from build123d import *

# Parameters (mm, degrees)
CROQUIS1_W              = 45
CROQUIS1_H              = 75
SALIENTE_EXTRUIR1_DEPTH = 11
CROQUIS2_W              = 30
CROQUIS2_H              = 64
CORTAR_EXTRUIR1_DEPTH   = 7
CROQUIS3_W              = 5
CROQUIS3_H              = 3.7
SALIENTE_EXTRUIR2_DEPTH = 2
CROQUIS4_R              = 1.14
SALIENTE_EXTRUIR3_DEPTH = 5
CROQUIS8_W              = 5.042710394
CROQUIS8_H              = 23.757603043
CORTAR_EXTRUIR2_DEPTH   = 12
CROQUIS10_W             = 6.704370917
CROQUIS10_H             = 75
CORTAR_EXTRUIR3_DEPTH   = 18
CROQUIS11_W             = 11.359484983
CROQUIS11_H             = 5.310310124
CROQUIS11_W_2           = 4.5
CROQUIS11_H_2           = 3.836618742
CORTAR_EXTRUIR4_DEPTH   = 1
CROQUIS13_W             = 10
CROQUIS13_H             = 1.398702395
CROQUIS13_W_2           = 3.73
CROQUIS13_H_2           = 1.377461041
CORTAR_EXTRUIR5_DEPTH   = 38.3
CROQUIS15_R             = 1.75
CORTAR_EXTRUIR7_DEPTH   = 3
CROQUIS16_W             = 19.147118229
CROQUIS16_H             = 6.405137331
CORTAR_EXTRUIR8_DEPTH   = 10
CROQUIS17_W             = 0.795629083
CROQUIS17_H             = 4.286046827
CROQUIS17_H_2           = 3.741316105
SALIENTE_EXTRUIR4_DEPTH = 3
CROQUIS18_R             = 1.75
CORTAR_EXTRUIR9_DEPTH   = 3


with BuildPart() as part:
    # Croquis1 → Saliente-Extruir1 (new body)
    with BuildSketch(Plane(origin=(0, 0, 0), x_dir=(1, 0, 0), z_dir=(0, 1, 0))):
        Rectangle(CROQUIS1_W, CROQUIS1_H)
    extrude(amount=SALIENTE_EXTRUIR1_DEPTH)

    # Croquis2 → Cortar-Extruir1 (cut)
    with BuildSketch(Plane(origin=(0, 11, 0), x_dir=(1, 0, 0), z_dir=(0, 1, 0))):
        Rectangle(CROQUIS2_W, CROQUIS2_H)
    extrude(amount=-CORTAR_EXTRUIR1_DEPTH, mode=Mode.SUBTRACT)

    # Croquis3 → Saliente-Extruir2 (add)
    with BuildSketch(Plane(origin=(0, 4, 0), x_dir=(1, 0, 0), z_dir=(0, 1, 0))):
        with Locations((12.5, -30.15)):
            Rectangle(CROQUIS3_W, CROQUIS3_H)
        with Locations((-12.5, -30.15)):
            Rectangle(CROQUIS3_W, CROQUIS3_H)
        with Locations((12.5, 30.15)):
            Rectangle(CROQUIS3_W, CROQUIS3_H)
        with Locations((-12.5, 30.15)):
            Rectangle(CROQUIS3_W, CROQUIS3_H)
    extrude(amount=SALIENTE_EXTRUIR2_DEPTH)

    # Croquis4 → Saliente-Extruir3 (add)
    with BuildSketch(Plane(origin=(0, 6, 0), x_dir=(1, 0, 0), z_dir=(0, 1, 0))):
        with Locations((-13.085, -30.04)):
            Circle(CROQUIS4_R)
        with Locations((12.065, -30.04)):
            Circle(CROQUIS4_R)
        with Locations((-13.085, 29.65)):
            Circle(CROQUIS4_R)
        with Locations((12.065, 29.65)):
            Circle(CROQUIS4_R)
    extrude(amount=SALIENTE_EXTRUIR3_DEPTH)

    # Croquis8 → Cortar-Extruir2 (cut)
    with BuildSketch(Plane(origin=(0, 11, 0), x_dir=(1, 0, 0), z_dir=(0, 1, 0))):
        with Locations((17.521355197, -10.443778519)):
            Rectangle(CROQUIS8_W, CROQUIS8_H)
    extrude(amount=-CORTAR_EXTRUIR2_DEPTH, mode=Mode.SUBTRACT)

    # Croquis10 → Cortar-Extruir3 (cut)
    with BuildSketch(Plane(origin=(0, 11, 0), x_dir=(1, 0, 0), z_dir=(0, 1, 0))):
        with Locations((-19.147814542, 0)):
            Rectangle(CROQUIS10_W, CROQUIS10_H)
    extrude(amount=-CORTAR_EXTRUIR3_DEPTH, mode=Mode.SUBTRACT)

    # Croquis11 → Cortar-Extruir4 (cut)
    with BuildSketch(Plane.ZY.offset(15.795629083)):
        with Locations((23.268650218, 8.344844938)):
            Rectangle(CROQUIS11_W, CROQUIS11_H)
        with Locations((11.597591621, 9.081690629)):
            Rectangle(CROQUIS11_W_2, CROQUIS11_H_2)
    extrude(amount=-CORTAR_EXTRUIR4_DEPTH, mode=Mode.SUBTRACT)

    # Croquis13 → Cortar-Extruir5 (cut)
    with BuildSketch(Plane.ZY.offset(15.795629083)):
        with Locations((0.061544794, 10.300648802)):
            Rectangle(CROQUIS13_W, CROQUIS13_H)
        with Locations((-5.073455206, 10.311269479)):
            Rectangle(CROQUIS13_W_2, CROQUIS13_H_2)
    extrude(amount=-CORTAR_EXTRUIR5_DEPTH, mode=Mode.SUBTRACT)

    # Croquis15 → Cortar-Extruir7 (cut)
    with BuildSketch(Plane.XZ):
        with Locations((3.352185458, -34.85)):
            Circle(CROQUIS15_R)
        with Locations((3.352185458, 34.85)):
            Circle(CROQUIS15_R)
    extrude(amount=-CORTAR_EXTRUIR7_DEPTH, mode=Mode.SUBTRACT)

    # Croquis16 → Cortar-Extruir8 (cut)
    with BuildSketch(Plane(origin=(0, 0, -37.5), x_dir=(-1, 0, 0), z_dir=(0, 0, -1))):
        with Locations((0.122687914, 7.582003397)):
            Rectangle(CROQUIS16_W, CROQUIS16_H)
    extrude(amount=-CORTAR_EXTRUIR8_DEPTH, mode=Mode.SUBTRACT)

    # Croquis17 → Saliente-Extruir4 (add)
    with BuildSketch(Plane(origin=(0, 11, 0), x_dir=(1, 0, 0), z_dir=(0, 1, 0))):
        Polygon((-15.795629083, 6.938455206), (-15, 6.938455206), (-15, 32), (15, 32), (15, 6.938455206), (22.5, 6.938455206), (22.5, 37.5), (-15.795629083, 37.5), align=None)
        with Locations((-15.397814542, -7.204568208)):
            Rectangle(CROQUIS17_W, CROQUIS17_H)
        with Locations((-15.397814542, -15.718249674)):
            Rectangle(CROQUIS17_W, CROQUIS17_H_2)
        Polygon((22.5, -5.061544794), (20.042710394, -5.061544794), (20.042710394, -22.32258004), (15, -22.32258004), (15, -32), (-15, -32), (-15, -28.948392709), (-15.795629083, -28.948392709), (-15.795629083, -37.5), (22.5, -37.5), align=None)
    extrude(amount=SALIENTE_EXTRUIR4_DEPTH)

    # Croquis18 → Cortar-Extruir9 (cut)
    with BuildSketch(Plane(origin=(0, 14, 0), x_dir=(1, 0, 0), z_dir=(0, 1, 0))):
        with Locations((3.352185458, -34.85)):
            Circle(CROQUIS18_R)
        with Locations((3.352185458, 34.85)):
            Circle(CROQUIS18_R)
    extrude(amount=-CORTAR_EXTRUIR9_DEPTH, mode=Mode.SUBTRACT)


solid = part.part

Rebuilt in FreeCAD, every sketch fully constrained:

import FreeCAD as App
import Part
import Sketcher
from FreeCAD import Vector


def add_polygon(sketch, points):
    """Adds a closed chain of lines whose ends are joined by coincident constraints."""
    first, n = sketch.GeometryCount, len(points)
    for a, b in zip(points, points[1:] + points[:1]):
        sketch.addGeometry(Part.LineSegment(App.Vector(*a, 0), App.Vector(*b, 0)), False)
    for i in range(n):
        sketch.addConstraint(Sketcher.Constraint("Coincident", first + i, 2, first + (i + 1) % n, 1))

doc = App.newDocument("Part")
params = doc.addObject("Spreadsheet::Sheet", "Params")
for row, (alias, value) in enumerate([
    ("sketch1_width", "45 mm"),
    ("sketch1_height", "75 mm"),
    ("pad1_length", "11 mm"),
    ("sketch2_width", "30 mm"),
    ("sketch2_height", "64 mm"),
    ("pocket1_length", "7 mm"),
    ("sketch3_width", "5 mm"),
    ("sketch3_height", "3.7 mm"),
    ("pad2_length", "2 mm"),
    ("sketch4_diameter", "2.28 mm"),
    ("pad3_length", "5 mm"),
    ("pocket2_length", "12 mm"),
    ("sketch6_height", "75 mm"),
    ("pocket3_length", "18 mm"),
    ("sketch7_height", "4.5 mm"),
    ("pocket4_length", "1 mm"),
    ("sketch8_height", "10 mm"),
    ("sketch8_height2", "12 mm"),
    ("pocket5_length", "38.3 mm"),
    ("sketch9_diameter", "3.5 mm"),
    ("pocket6_length", "3 mm"),
    ("pocket7_length", "10 mm"),
    ("sketch11_width", "30 mm"),
    ("sketch11_width2", "7.5 mm"),
    ("pad4_length", "3 mm"),
    ("sketch12_diameter", "3.5 mm"),
    ("pocket8_length", "3 mm"),
], start=1):
    params.set(f"A{row}", alias)
    params.set(f"B{row}", "=" + value)
    params.setAlias(f"B{row}", alias)

body = doc.addObject("PartDesign::Body", "Body")

# Sketch on XZ plane
sketch1 = body.newObject("Sketcher::SketchObject", "Sketch")
sketch1.AttachmentSupport = (doc.getObject("XZ_Plane"), [""])
sketch1.MapMode = "FlatFace"
add_polygon(sketch1, [(-22.5, -37.5), (-22.5, 37.5), (22.5, 37.5), (22.5, -37.5)])  # lines 0-3
sketch1.addConstraint([
    Sketcher.Constraint("Vertical", 0),
    Sketcher.Constraint("Horizontal", 1),
    Sketcher.Constraint("Vertical", 2),
    Sketcher.Constraint("Horizontal", 3),
    Sketcher.Constraint("Symmetric", 0, 2, 2, 2, -1, 1),
    Sketcher.Constraint("DistanceX", 1, 1, 1, 2, 45.0),
    Sketcher.Constraint("DistanceY", 0, 1, 0, 2, 75.0),
])
sketch1.setExpression("Constraints[9]", "Params.sketch1_width")
sketch1.setExpression("Constraints[10]", "Params.sketch1_height")
pad1 = body.newObject("PartDesign::Pad", "Pad")
pad1.Profile = sketch1
pad1.setExpression("Length", "Params.pad1_length")
pad1.Reversed = True

# Sketch on XZ plane
sketch2 = body.newObject("Sketcher::SketchObject", "Sketch001")
sketch2.AttachmentSupport = (doc.getObject("XZ_Plane"), [""])
sketch2.MapMode = "FlatFace"
sketch2.AttachmentOffset = App.Placement(Vector(0, 0, -11), App.Rotation())
add_polygon(sketch2, [(-15, -32), (-15, 32), (15, 32), (15, -32)])  # lines 0-3
sketch2.addConstraint([
    Sketcher.Constraint("Vertical", 0),
    Sketcher.Constraint("Horizontal", 1),
    Sketcher.Constraint("Vertical", 2),
    Sketcher.Constraint("Horizontal", 3),
    Sketcher.Constraint("Symmetric", 0, 2, 2, 2, -1, 1),
    Sketcher.Constraint("DistanceX", 1, 1, 1, 2, 30.0),
    Sketcher.Constraint("DistanceY", 0, 1, 0, 2, 64.0),
])
sketch2.setExpression("Constraints[9]", "Params.sketch2_width")
sketch2.setExpression("Constraints[10]", "Params.sketch2_height")
pocket1 = body.newObject("PartDesign::Pocket", "Pocket")
pocket1.Profile = sketch2
pocket1.setExpression("Length", "Params.pocket1_length")
pocket1.Reversed = True

# Sketch on XZ plane
sketch3 = body.newObject("Sketcher::SketchObject", "Sketch002")
sketch3.AttachmentSupport = (doc.getObject("XZ_Plane"), [""])
sketch3.MapMode = "FlatFace"
sketch3.AttachmentOffset = App.Placement(Vector(0, 0, -4), App.Rotation())
add_polygon(sketch3, [(10, 28.3), (10, 32), (15, 32), (15, 28.3)])  # lines 0-3
add_polygon(sketch3, [(-15, 28.3), (-15, 32), (-10, 32), (-10, 28.3)])  # lines 4-7
add_polygon(sketch3, [(10, -32), (10, -28.3), (15, -28.3), (15, -32)])  # lines 8-11
add_polygon(sketch3, [(-15, -32), (-15, -28.3), (-10, -28.3), (-10, -32)])  # lines 12-15
sketch3.addConstraint([
    Sketcher.Constraint("Vertical", 0),
    Sketcher.Constraint("Horizontal", 1),
    Sketcher.Constraint("Vertical", 2),
    Sketcher.Constraint("Horizontal", 3),
    Sketcher.Constraint("Vertical", 4),
    Sketcher.Constraint("Horizontal", 5),
    Sketcher.Constraint("Vertical", 6),
    Sketcher.Constraint("Horizontal", 7),
    Sketcher.Constraint("Vertical", 8),
    Sketcher.Constraint("Horizontal", 9),
    Sketcher.Constraint("Vertical", 10),
    Sketcher.Constraint("Horizontal", 11),
    Sketcher.Constraint("Vertical", 12),
    Sketcher.Constraint("Horizontal", 13),
    Sketcher.Constraint("Vertical", 14),
    Sketcher.Constraint("Horizontal", 15),
    Sketcher.Constraint("Symmetric", 6, 2, 8, 2, -1, 1),
    Sketcher.Constraint("Symmetric", 4, 2, 10, 2, -1, 1),
    Sketcher.Constraint("Symmetric", 2, 2, 12, 2, -1, 1),
    Sketcher.Constraint("Symmetric", 0, 2, 14, 2, -1, 1),
    Sketcher.Constraint("Symmetric", 1, 2, 4, 2, -2),
    Sketcher.Constraint("Symmetric", 3, 2, 6, 2, -2),
    Sketcher.Constraint("DistanceX", 1, 1, 1, 2, 5.0),
    Sketcher.Constraint("DistanceY", 0, 1, 0, 2, 3.7),
    Sketcher.Constraint("DistanceX", -1, 1, 0, 2, 10.0),
    Sketcher.Constraint("DistanceY", -1, 1, 0, 2, 32.0),
])
sketch3.setExpression("Constraints[38]", "Params.sketch3_width")
sketch3.setExpression("Constraints[39]", "Params.sketch3_height")
pad2 = body.newObject("PartDesign::Pad", "Pad001")
pad2.Profile = sketch3
pad2.setExpression("Length", "Params.pad2_length")
pad2.Reversed = True

# Sketch on XZ plane
sketch4 = body.newObject("Sketcher::SketchObject", "Sketch003")
sketch4.AttachmentSupport = (doc.getObject("XZ_Plane"), [""])
sketch4.MapMode = "FlatFace"
sketch4.AttachmentOffset = App.Placement(Vector(0, 0, -6), App.Rotation())
sketch4.addGeometry([
    Part.Circle(Vector(-13.085, 30.04, 0), Vector(0, 0, 1), 1.14),
    Part.Circle(Vector(12.065, 30.04, 0), Vector(0, 0, 1), 1.14),
    Part.Circle(Vector(-13.085, -29.65, 0), Vector(0, 0, 1), 1.14),
    Part.Circle(Vector(12.065, -29.65, 0), Vector(0, 0, 1), 1.14),
], False)
sketch4.addConstraint([
    Sketcher.Constraint("Equal", 0, 1),
    Sketcher.Constraint("Equal", 1, 2),
    Sketcher.Constraint("Equal", 2, 3),
    Sketcher.Constraint("Horizontal", 0, 3, 1, 3),
    Sketcher.Constraint("Horizontal", 2, 3, 3, 3),
    Sketcher.Constraint("Vertical", 0, 3, 2, 3),
    Sketcher.Constraint("Vertical", 1, 3, 3, 3),
    Sketcher.Constraint("Diameter", 0, 2.28),
    Sketcher.Constraint("DistanceY", -1, 1, 0, 3, 30.04),
    Sketcher.Constraint("DistanceY", 2, 3, -1, 1, 29.65),
    Sketcher.Constraint("DistanceX", 0, 3, 1, 3, 25.15),
    Sketcher.Constraint("DistanceX", 0, 3, -1, 1, 13.085),
])
sketch4.setExpression("Constraints[7]", "Params.sketch4_diameter")
pad3 = body.newObject("PartDesign::Pad", "Pad002")
pad3.Profile = sketch4
pad3.setExpression("Length", "Params.pad3_length")
pad3.Reversed = True

# Sketch on XZ plane
sketch5 = body.newObject("Sketcher::SketchObject", "Sketch004")
sketch5.AttachmentSupport = (doc.getObject("XZ_Plane"), [""])
sketch5.MapMode = "FlatFace"
sketch5.AttachmentOffset = App.Placement(Vector(0, 0, -11), App.Rotation())
add_polygon(sketch5, [(15, -1.435023), (15, 22.32258), (20.04271, 22.32258), (20.04271, -1.435023)])  # lines 0-3
sketch5.addConstraint([
    Sketcher.Constraint("Vertical", 0),
    Sketcher.Constraint("Horizontal", 1),
    Sketcher.Constraint("Vertical", 2),
    Sketcher.Constraint("Horizontal", 3),
    Sketcher.Constraint("DistanceX", -1, 1, 0, 2, 15.0),
    Sketcher.Constraint("DistanceX", 1, 1, 1, 2, 5.04271),
    Sketcher.Constraint("DistanceY", 0, 1, 0, 2, 23.757603),
    Sketcher.Constraint("DistanceY", -1, 1, 0, 2, 22.32258),
])
pocket2 = body.newObject("PartDesign::Pocket", "Pocket001")
pocket2.Profile = sketch5
pocket2.setExpression("Length", "Params.pocket2_length")
pocket2.Reversed = True

# Sketch on XZ plane
sketch6 = body.newObject("Sketcher::SketchObject", "Sketch005")
sketch6.AttachmentSupport = (doc.getObject("XZ_Plane"), [""])
sketch6.MapMode = "FlatFace"
sketch6.AttachmentOffset = App.Placement(Vector(0, 0, -11), App.Rotation())
add_polygon(sketch6, [(-22.5, -37.5), (-22.5, 37.5), (-15.795629, 37.5), (-15.795629, -37.5)])  # lines 0-3
sketch6.addConstraint([
    Sketcher.Constraint("Vertical", 0),
    Sketcher.Constraint("Horizontal", 1),
    Sketcher.Constraint("Vertical", 2),
    Sketcher.Constraint("Horizontal", 3),
    Sketcher.Constraint("DistanceY", 0, 1, 0, 2, 75.0),
    Sketcher.Constraint("DistanceX", 0, 2, -1, 1, 22.5),
    Sketcher.Constraint("DistanceY", -1, 1, 0, 2, 37.5),
    Sketcher.Constraint("DistanceX", 1, 1, 1, 2, 6.704371),
])
sketch6.setExpression("Constraints[8]", "Params.sketch6_height")
pocket3 = body.newObject("PartDesign::Pocket", "Pocket002")
pocket3.Profile = sketch6
pocket3.setExpression("Length", "Params.pocket3_length")
pocket3.Reversed = True

# Sketch on YZ plane
sketch7 = body.newObject("Sketcher::SketchObject", "Sketch006")
sketch7.AttachmentSupport = (doc.getObject("YZ_Plane"), [""])
sketch7.MapMode = "FlatFace"
sketch7.AttachmentOffset = App.Placement(Vector(0, 0, -15.795629), App.Rotation())
add_polygon(sketch7, [(11, 17.588908), (5.68969, 17.588908), (5.68969, 28.948393), (11, 28.948393)])  # lines 0-3
add_polygon(sketch7, [(11, 9.347592), (7.163381, 9.347592), (7.163381, 13.847592), (11, 13.847592)])  # lines 4-7
sketch7.addConstraint([
    Sketcher.Constraint("Horizontal", 0),
    Sketcher.Constraint("Vertical", 1),
    Sketcher.Constraint("Horizontal", 2),
    Sketcher.Constraint("Vertical", 3),
    Sketcher.Constraint("Horizontal", 4),
    Sketcher.Constraint("Vertical", 5),
    Sketcher.Constraint("Horizontal", 6),
    Sketcher.Constraint("Vertical", 7),
    Sketcher.Constraint("Vertical", 3, 2, 6, 2),
    Sketcher.Constraint("DistanceY", 5, 1, 5, 2, 4.5),
    Sketcher.Constraint("DistanceX", -1, 1, 2, 2, 11.0),
    Sketcher.Constraint("DistanceX", 0, 2, 0, 1, 5.31031),
    Sketcher.Constraint("DistanceX", 4, 2, 4, 1, 3.836619),
    Sketcher.Constraint("DistanceY", 4, 2, 1, 2, 19.600801),
    Sketcher.Constraint("DistanceY", 1, 1, 1, 2, 11.359485),
    Sketcher.Constraint("DistanceY", -1, 1, 4, 2, 9.347592),
])
sketch7.setExpression("Constraints[17]", "Params.sketch7_height")
pocket4 = body.newObject("PartDesign::Pocket", "Pocket003")
pocket4.Profile = sketch7
pocket4.setExpression("Length", "Params.pocket4_length")
pocket4.Reversed = True

# Sketch on YZ plane
sketch8 = body.newObject("Sketcher::SketchObject", "Sketch007")
sketch8.AttachmentSupport = (doc.getObject("YZ_Plane"), [""])
sketch8.MapMode = "FlatFace"
sketch8.AttachmentOffset = App.Placement(Vector(0, 0, -15.795629), App.Rotation())
add_polygon(sketch8, [(9.622539, -4.938455), (9.601298, -4.938455), (9.601298, 5.061545), (11, 5.061545), (11, -6.938455), (9.622539, -6.938455)])  # lines 0-5
sketch8.addConstraint([
    Sketcher.Constraint("Horizontal", 0),
    Sketcher.Constraint("Vertical", 1),
    Sketcher.Constraint("Horizontal", 2),
    Sketcher.Constraint("Vertical", 3),
    Sketcher.Constraint("Horizontal", 4),
    Sketcher.Constraint("Vertical", 5),
    Sketcher.Constraint("DistanceY", 1, 1, 1, 2, 10.0),
    Sketcher.Constraint("DistanceY", 3, 2, 3, 1, 12.0),
    Sketcher.Constraint("DistanceX", -1, 1, 2, 2, 11.0),
    Sketcher.Constraint("DistanceX", 0, 2, 0, 1, 0.021241),
    Sketcher.Constraint("DistanceX", 4, 2, 4, 1, 1.377461),
    Sketcher.Constraint("DistanceY", 0, 2, -1, 1, 4.938455),
])
sketch8.setExpression("Constraints[12]", "Params.sketch8_height")
sketch8.setExpression("Constraints[13]", "Params.sketch8_height2")
pocket5 = body.newObject("PartDesign::Pocket", "Pocket004")
pocket5.Profile = sketch8
pocket5.setExpression("Length", "Params.pocket5_length")
pocket5.Reversed = True

# Sketch on XZ plane
sketch9 = body.newObject("Sketcher::SketchObject", "Sketch008")
sketch9.AttachmentSupport = (doc.getObject("XZ_Plane"), [""])
sketch9.MapMode = "FlatFace"
sketch9.addGeometry([
    Part.Circle(Vector(3.352185, -34.85, 0), Vector(0, 0, 1), 1.75),
    Part.Circle(Vector(3.352185, 34.85, 0), Vector(0, 0, 1), 1.75),
], False)
sketch9.addConstraint([
    Sketcher.Constraint("Equal", 0, 1),
    Sketcher.Constraint("Symmetric", 0, 3, 1, 3, -1),
    Sketcher.Constraint("Diameter", 0, 3.5),
    Sketcher.Constraint("DistanceY", 0, 3, 1, 3, 69.7),
    Sketcher.Constraint("DistanceX", -1, 1, 0, 3, 3.352185),
])
sketch9.setExpression("Constraints[2]", "Params.sketch9_diameter")
pocket6 = body.newObject("PartDesign::Pocket", "Pocket005")
pocket6.Profile = sketch9
pocket6.setExpression("Length", "Params.pocket6_length")

# Sketch on XY plane
sketch10 = body.newObject("Sketcher::SketchObject", "Sketch009")
sketch10.AttachmentSupport = (doc.getObject("XY_Plane"), [""])
sketch10.MapMode = "FlatFace"
sketch10.AttachmentOffset = App.Placement(Vector(0, 0, -37.5), App.Rotation())
add_polygon(sketch10, [(9.450871, 10.784572), (9.450871, 4.379435), (-9.696247, 4.379435), (-9.696247, 10.784572)])  # lines 0-3
sketch10.addConstraint([
    Sketcher.Constraint("Vertical", 0),
    Sketcher.Constraint("Horizontal", 1),
    Sketcher.Constraint("Vertical", 2),
    Sketcher.Constraint("Horizontal", 3),
    Sketcher.Constraint("DistanceX", 1, 2, 1, 1, 19.147118),
    Sketcher.Constraint("DistanceY", 0, 2, 0, 1, 6.405137),
    Sketcher.Constraint("DistanceX", -1, 1, 0, 2, 9.450871),
    Sketcher.Constraint("DistanceY", -1, 1, 0, 2, 4.379435),
])
pocket7 = body.newObject("PartDesign::Pocket", "Pocket006")
pocket7.Profile = sketch10
pocket7.setExpression("Length", "Params.pocket7_length")
pocket7.Reversed = True

# Sketch on XZ plane
sketch11 = body.newObject("Sketcher::SketchObject", "Sketch010")
sketch11.AttachmentSupport = (doc.getObject("XZ_Plane"), [""])
sketch11.MapMode = "FlatFace"
sketch11.AttachmentOffset = App.Placement(Vector(0, 0, -11), App.Rotation())
add_polygon(sketch11, [(-15.795629, -6.938455), (-15, -6.938455), (-15, -32), (15, -32), (15, -6.938455), (22.5, -6.938455), (22.5, -37.5), (-15.795629, -37.5)])  # lines 0-7
add_polygon(sketch11, [(-15.795629, 5.061545), (-15.795629, 9.347592), (-15, 9.347592), (-15, 5.061545)])  # lines 8-11
add_polygon(sketch11, [(-15.795629, 13.847592), (-15.795629, 17.588908), (-15, 17.588908), (-15, 13.847592)])  # lines 12-15
add_polygon(sketch11, [(22.5, 5.061545), (20.04271, 5.061545), (20.04271, 22.32258), (15, 22.32258), (15, 32), (-15, 32), (-15, 28.948393), (-15.795629, 28.948393), (-15.795629, 37.5), (22.5, 37.5)])  # lines 16-25
sketch11.addConstraint([
    Sketcher.Constraint("Horizontal", 0),
    Sketcher.Constraint("Vertical", 1),
    Sketcher.Constraint("Horizontal", 2),
    Sketcher.Constraint("Vertical", 3),
    Sketcher.Constraint("Horizontal", 4),
    Sketcher.Constraint("Vertical", 5),
    Sketcher.Constraint("Horizontal", 6),
    Sketcher.Constraint("Vertical", 7),
    Sketcher.Constraint("Vertical", 8),
    Sketcher.Constraint("Horizontal", 9),
    Sketcher.Constraint("Vertical", 10),
    Sketcher.Constraint("Horizontal", 11),
    Sketcher.Constraint("Vertical", 12),
    Sketcher.Constraint("Horizontal", 13),
    Sketcher.Constraint("Vertical", 14),
    Sketcher.Constraint("Horizontal", 15),
    Sketcher.Constraint("Horizontal", 16),
    Sketcher.Constraint("Vertical", 17),
    Sketcher.Constraint("Horizontal", 18),
    Sketcher.Constraint("Vertical", 19),
    Sketcher.Constraint("Horizontal", 20),
    Sketcher.Constraint("Vertical", 21),
    Sketcher.Constraint("Horizontal", 22),
    Sketcher.Constraint("Vertical", 23),
    Sketcher.Constraint("Horizontal", 24),
    Sketcher.Constraint("Vertical", 25),
    Sketcher.Constraint("Symmetric", 1, 2, 19, 2, -1, 1),
    Sketcher.Constraint("Symmetric", 0, 2, 3, 2, -2),
    Sketcher.Constraint("Symmetric", 6, 2, 23, 2, -1),
    Sketcher.Constraint("Horizontal", 11, 2, 16, 2),
    Sketcher.Constraint("Vertical", 7, 2, 8, 2),
    Sketcher.Constraint("Vertical", 1, 2, 9, 2),
    Sketcher.Constraint("Vertical", 11, 2, 12, 2),
    Sketcher.Constraint("Vertical", 10, 2, 13, 2),
    Sketcher.Constraint("Vertical", 14, 2, 20, 2),
    Sketcher.Constraint("Vertical", 5, 2, 24, 2),
    Sketcher.Constraint("DistanceX", 2, 1, 2, 2, 30.0),
    Sketcher.Constraint("DistanceX", 4, 1, 4, 2, 7.5),
    Sketcher.Constraint("DistanceY", 1, 2, -1, 1, 32.0),
    Sketcher.Constraint("DistanceY", 0, 2, 10, 2, 12.0),
    Sketcher.Constraint("DistanceY", 5, 2, -1, 1, 37.5),
    Sketcher.Constraint("DistanceY", 9, 2, 14, 2, 4.5),
    Sketcher.Constraint("DistanceX", 0, 1, 0, 2, 0.795629),
    Sketcher.Constraint("DistanceX", 16, 2, 16, 1, 2.45729),
    Sketcher.Constraint("DistanceY", 19, 1, 19, 2, 9.67742),
    Sketcher.Constraint("DistanceY", 14, 2, 21, 2, 15.100801),
    Sketcher.Constraint("DistanceY", 1, 2, 1, 1, 25.061545),
    Sketcher.Constraint("DistanceY", 8, 1, 8, 2, 4.286047),
    Sketcher.Constraint("DistanceY", 12, 1, 12, 2, 3.741316),
])
sketch11.setExpression("Constraints[62]", "Params.sketch11_width")
sketch11.setExpression("Constraints[63]", "Params.sketch11_width2")
pad4 = body.newObject("PartDesign::Pad", "Pad003")
pad4.Profile = sketch11
pad4.setExpression("Length", "Params.pad4_length")
pad4.Reversed = True

# Sketch on XZ plane
sketch12 = body.newObject("Sketcher::SketchObject", "Sketch011")
sketch12.AttachmentSupport = (doc.getObject("XZ_Plane"), [""])
sketch12.MapMode = "FlatFace"
sketch12.AttachmentOffset = App.Placement(Vector(0, 0, -14), App.Rotation())
sketch12.addGeometry([
    Part.Circle(Vector(3.352185, 34.85, 0), Vector(0, 0, 1), 1.75),
    Part.Circle(Vector(3.352185, -34.85, 0), Vector(0, 0, 1), 1.75),
], False)
sketch12.addConstraint([
    Sketcher.Constraint("Equal", 0, 1),
    Sketcher.Constraint("Symmetric", 0, 3, 1, 3, -1),
    Sketcher.Constraint("Diameter", 0, 3.5),
    Sketcher.Constraint("DistanceY", 1, 3, 0, 3, 69.7),
    Sketcher.Constraint("DistanceX", -1, 1, 0, 3, 3.352185),
])
sketch12.setExpression("Constraints[2]", "Params.sketch12_diameter")
pocket8 = body.newObject("PartDesign::Pocket", "Pocket007")
pocket8.Profile = sketch12
pocket8.setExpression("Length", "Params.pocket8_length")
pocket8.Reversed = True

doc.recompute()
